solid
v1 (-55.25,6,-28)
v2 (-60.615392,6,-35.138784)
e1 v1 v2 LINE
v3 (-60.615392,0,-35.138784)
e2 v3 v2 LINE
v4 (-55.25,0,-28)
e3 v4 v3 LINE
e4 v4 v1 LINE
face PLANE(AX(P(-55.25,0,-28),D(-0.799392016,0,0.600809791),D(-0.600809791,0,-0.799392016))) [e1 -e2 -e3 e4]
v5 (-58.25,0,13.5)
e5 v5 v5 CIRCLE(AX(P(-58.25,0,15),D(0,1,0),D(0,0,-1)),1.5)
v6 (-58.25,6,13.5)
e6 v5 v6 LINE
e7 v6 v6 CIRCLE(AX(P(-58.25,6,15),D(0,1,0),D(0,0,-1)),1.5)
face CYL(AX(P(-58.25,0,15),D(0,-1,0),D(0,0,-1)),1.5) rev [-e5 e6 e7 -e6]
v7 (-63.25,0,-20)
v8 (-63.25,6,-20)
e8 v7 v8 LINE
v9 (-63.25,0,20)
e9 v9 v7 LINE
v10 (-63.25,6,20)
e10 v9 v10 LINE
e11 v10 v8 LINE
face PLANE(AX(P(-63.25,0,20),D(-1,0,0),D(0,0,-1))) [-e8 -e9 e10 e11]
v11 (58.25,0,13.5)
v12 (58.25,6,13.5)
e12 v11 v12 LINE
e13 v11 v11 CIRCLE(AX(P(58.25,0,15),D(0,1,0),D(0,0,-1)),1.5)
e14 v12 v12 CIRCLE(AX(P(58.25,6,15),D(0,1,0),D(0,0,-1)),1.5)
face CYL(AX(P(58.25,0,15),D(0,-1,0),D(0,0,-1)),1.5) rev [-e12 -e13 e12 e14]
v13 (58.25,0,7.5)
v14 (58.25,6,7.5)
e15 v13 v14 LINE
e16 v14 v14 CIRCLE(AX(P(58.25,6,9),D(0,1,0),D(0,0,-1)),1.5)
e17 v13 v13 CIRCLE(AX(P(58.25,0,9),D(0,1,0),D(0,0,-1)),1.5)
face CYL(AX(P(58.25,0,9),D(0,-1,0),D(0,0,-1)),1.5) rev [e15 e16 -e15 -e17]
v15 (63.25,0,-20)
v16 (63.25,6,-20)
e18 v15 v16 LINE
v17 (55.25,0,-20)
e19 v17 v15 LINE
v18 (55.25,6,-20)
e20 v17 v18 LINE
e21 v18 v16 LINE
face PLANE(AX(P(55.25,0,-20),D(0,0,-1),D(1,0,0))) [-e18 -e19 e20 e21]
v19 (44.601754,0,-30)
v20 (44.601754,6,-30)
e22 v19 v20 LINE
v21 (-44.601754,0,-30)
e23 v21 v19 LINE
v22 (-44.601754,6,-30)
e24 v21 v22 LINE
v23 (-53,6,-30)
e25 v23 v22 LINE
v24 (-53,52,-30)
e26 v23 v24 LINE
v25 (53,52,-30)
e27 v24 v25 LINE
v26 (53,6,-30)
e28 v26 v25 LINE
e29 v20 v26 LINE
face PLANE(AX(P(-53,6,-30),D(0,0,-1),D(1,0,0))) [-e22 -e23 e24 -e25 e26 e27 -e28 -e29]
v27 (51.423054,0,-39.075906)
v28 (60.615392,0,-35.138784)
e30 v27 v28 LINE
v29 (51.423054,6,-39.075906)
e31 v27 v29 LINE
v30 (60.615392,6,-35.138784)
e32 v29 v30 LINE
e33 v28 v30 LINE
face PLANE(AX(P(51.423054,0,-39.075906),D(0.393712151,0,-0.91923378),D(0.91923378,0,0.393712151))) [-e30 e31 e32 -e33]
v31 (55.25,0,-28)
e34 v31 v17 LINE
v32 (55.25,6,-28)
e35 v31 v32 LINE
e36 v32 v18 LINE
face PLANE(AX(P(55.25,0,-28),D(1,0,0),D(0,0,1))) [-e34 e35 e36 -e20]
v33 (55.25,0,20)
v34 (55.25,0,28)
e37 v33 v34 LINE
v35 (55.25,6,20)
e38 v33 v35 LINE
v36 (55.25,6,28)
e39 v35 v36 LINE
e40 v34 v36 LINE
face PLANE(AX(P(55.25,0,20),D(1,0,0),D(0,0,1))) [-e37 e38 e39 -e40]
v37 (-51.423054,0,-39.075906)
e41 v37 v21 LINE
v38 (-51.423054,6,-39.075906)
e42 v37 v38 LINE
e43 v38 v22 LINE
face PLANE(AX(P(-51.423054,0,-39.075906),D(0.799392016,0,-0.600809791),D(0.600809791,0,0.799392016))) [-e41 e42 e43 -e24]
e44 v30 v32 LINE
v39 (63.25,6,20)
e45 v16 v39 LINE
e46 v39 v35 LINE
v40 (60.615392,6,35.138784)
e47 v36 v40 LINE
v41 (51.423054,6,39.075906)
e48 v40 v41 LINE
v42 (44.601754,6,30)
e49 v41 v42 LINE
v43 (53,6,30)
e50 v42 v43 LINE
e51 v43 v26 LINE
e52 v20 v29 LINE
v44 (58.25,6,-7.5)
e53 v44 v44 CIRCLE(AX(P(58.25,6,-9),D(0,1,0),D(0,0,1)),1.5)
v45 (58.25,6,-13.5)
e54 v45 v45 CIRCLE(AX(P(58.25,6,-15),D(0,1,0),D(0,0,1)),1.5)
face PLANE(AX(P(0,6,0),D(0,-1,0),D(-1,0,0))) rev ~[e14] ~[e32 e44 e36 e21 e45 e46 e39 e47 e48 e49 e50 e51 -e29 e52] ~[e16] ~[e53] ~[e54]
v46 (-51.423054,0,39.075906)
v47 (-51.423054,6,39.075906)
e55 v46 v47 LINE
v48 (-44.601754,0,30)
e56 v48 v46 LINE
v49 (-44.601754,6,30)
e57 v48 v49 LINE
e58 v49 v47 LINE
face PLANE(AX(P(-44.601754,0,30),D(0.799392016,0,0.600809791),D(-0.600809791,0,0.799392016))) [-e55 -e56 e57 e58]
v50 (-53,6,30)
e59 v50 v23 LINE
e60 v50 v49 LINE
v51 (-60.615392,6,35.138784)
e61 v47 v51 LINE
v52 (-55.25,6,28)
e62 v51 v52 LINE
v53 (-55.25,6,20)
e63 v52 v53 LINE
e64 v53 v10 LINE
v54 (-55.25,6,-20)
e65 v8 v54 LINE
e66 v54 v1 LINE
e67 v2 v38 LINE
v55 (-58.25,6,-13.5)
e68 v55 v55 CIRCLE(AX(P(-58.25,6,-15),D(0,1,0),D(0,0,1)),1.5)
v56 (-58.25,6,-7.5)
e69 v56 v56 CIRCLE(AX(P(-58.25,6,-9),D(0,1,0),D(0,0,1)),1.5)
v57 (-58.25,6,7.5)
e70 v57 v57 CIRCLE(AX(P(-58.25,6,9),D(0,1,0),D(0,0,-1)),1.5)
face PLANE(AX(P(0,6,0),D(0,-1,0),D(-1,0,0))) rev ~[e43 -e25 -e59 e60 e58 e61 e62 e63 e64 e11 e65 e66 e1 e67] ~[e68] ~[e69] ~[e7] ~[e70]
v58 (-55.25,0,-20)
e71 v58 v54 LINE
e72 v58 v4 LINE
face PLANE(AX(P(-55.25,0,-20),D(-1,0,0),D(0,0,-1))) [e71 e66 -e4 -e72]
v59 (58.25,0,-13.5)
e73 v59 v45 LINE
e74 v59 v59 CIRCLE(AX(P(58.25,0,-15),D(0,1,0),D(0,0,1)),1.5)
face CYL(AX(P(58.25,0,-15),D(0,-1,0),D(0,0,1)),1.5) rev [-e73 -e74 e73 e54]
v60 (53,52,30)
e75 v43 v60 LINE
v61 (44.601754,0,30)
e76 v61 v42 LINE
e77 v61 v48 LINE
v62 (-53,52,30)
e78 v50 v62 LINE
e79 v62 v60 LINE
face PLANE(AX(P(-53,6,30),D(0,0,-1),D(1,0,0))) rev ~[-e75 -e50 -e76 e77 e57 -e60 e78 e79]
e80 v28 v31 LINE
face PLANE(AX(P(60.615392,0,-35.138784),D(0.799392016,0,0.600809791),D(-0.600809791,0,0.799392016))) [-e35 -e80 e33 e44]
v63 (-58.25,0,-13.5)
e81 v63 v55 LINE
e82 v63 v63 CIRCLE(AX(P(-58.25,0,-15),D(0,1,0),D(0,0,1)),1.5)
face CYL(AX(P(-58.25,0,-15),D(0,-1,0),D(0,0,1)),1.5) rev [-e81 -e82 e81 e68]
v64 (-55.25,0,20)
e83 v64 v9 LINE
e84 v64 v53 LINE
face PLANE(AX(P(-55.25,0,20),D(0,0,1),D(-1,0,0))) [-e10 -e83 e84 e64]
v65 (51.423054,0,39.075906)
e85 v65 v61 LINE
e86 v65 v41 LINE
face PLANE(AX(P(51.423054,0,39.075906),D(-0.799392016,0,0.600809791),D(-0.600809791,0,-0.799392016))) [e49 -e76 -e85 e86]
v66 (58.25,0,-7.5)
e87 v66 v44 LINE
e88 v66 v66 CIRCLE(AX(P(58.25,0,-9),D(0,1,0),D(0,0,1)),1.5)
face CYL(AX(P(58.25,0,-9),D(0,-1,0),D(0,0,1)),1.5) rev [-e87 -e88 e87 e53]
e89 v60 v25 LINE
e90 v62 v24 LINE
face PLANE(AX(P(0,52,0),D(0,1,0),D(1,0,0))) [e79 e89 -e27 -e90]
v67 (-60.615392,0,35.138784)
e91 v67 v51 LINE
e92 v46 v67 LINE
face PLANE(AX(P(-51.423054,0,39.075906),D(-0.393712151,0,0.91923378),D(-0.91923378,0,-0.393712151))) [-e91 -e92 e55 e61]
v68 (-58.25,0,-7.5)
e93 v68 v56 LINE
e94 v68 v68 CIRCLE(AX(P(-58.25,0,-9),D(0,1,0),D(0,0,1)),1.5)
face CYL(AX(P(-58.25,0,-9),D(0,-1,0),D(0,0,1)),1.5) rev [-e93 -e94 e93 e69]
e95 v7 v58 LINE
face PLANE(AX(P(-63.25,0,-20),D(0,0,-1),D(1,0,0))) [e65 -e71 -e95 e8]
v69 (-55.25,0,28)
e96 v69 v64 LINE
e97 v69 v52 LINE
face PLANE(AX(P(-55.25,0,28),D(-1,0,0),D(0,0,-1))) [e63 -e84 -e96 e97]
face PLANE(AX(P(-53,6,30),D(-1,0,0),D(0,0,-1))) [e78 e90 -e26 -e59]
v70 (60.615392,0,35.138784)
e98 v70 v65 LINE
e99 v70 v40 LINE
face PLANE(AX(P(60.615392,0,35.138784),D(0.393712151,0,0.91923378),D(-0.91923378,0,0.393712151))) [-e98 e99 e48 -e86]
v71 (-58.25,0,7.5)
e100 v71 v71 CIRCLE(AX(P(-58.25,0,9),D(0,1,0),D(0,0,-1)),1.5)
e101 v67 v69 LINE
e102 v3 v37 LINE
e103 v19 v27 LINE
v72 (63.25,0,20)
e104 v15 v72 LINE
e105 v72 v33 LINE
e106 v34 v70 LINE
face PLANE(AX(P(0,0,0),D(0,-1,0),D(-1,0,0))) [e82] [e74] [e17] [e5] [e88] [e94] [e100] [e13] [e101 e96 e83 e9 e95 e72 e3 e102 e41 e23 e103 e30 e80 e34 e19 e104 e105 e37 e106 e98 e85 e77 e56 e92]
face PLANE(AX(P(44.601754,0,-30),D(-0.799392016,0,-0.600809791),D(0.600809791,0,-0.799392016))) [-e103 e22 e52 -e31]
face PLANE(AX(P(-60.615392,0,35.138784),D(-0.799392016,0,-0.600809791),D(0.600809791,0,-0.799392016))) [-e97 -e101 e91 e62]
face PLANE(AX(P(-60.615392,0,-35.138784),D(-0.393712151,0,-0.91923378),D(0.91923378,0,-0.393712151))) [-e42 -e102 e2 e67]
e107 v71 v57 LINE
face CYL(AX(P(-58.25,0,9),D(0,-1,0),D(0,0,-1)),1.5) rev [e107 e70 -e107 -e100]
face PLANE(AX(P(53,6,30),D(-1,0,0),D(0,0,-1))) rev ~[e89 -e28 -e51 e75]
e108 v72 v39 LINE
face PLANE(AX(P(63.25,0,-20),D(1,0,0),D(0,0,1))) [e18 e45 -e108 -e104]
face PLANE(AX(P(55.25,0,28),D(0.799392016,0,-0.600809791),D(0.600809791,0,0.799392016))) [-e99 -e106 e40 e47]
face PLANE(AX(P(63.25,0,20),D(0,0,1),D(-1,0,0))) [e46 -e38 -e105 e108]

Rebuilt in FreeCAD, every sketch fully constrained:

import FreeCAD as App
import Part
import Sketcher
from FreeCAD import Vector

doc = App.newDocument("Part")
body = doc.addObject("PartDesign::Body", "Body")

# Sketch on XZ plane
sketch1 = body.newObject("Sketcher::SketchObject", "Sketch")
sketch1.AttachmentSupport = (doc.getObject("XZ_Plane"), [""])
sketch1.MapMode = "FlatFace"
sketch1.addGeometry(Part.LineSegment(Vector(-44.6, 30, 0), Vector(44.6, 30, 0)), False)
sketch1.addGeometry(Part.LineSegment(Vector(44.6, 30, 0), Vector(51.4, 39.1, 0)), False)
sketch1.addGeometry(Part.LineSegment(Vector(51.4, 39.1, 0), Vector(60.6, 35.1, 0)), False)
sketch1.addGeometry(Part.LineSegment(Vector(60.6, 35.1, 0), Vector(55.2, 28, 0)), False)
sketch1.addGeometry(Part.LineSegment(Vector(55.2, 28, 0), Vector(55.2, 20, 0)), False)
sketch1.addGeometry(Part.LineSegment(Vector(55.2, 20, 0), Vector(63.2, 20, 0)), False)
sketch1.addGeometry(Part.LineSegment(Vector(63.2, 20, 0), Vector(63.2, -20, 0)), False)
sketch1.addGeometry(Part.LineSegment(Vector(63.2, -20, 0), Vector(55.2, -20, 0)), False)
sketch1.addGeometry(Part.LineSegment(Vector(55.2, -20, 0), Vector(55.2, -28, 0)), False)
sketch1.addGeometry(Part.LineSegment(Vector(55.2, -28, 0), Vector(60.6, -35.1, 0)), False)
sketch1.addGeometry(Part.LineSegment(Vector(60.6, -35.1, 0), Vector(51.4, -39.1, 0)), False)
sketch1.addGeometry(Part.LineSegment(Vector(51.4, -39.1, 0), Vector(44.6, -30, 0)), False)
sketch1.addGeometry(Part.LineSegment(Vector(44.6, -30, 0), Vector(-44.6, -30, 0)), False)
sketch1.addGeometry(Part.LineSegment(Vector(-44.6, -30, 0), Vector(-51.4, -39.1, 0)), False)
sketch1.addGeometry(Part.LineSegment(Vector(-51.4, -39.1, 0), Vector(-60.6, -35.1, 0)), False)
sketch1.addGeometry(Part.LineSegment(Vector(-60.6, -35.1, 0), Vector(-55.2, -28, 0)), False)
sketch1.addGeometry(Part.LineSegment(Vector(-55.2, -28, 0), Vector(-55.2, -20, 0)), False)
sketch1.addGeometry(Part.LineSegment(Vector(-55.2, -20, 0), Vector(-63.2, -20, 0)), False)
sketch1.addGeometry(Part.LineSegment(Vector(-63.2, -20, 0), Vector(-63.2, 20, 0)), False)
sketch1.addGeometry(Part.LineSegment(Vector(-63.2, 20, 0), Vector(-55.2, 20, 0)), False)
sketch1.addGeometry(Part.LineSegment(Vector(-55.2, 20, 0), Vector(-55.2, 28, 0)), False)
sketch1.addGeometry(Part.LineSegment(Vector(-55.2, 28, 0), Vector(-60.6, 35.1, 0)), False)
sketch1.addGeometry(Part.LineSegment(Vector(-60.6, 35.1, 0), Vector(-51.4, 39.1, 0)), False)
sketch1.addGeometry(Part.LineSegment(Vector(-51.4, 39.1, 0), Vector(-44.6, 30, 0)), False)
sketch1.addGeometry(Part.Circle(Vector(58.2, 15, 0), Vector(0, 0, 1), 1.5), False)
sketch1.addGeometry(Part.Circle(Vector(58.2, 9, 0), Vector(0, 0, 1), 1.5), False)
sketch1.addGeometry(Part.Circle(Vector(-58.2, 15, 0), Vector(0, 0, 1), 1.5), False)
sketch1.addGeometry(Part.Circle(Vector(-58.2, 9, 0), Vector(0, 0, 1), 1.5), False)
sketch1.addGeometry(Part.Circle(Vector(58.2, -9, 0), Vector(0, 0, 1), 1.5), False)
sketch1.addGeometry(Part.Circle(Vector(58.2, -15, 0), Vector(0, 0, 1), 1.5), False)
sketch1.addGeometry(Part.Circle(Vector(-58.2, -9, 0), Vector(0, 0, 1), 1.5), False)
sketch1.addGeometry(Part.Circle(Vector(-58.2, -15, 0), Vector(0, 0, 1), 1.5), False)
sketch1.addConstraint(Sketcher.Constraint("Coincident", 0, 2, 1, 1))
sketch1.addConstraint(Sketcher.Constraint("Coincident", 1, 2, 2, 1))
sketch1.addConstraint(Sketcher.Constraint("Coincident", 2, 2, 3, 1))
sketch1.addConstraint(Sketcher.Constraint("Coincident", 3, 2, 4, 1))
sketch1.addConstraint(Sketcher.Constraint("Coincident", 4, 2, 5, 1))
sketch1.addConstraint(Sketcher.Constraint("Coincident", 5, 2, 6, 1))
sketch1.addConstraint(Sketcher.Constraint("Coincident", 6, 2, 7, 1))
sketch1.addConstraint(Sketcher.Constraint("Coincident", 7, 2, 8, 1))
sketch1.addConstraint(Sketcher.Constraint("Coincident", 8, 2, 9, 1))
sketch1.addConstraint(Sketcher.Constraint("Coincident", 9, 2, 10, 1))
sketch1.addConstraint(Sketcher.Constraint("Coincident", 10, 2, 11, 1))
sketch1.addConstraint(Sketcher.Constraint("Coincident", 11, 2, 12, 1))
sketch1.addConstraint(Sketcher.Constraint("Coincident", 12, 2, 13, 1))
sketch1.addConstraint(Sketcher.Constraint("Coincident", 13, 2, 14, 1))
sketch1.addConstraint(Sketcher.Constraint("Coincident", 14, 2, 15, 1))
sketch1.addConstraint(Sketcher.Constraint("Coincident", 15, 2, 16, 1))
sketch1.addConstraint(Sketcher.Constraint("Coincident", 16, 2, 17, 1))
sketch1.addConstraint(Sketcher.Constraint("Coincident", 17, 2, 18, 1))
sketch1.addConstraint(Sketcher.Constraint("Coincident", 18, 2, 19, 1))
sketch1.addConstraint(Sketcher.Constraint("Coincident", 19, 2, 20, 1))
sketch1.addConstraint(Sketcher.Constraint("Coincident", 20, 2, 21, 1))
sketch1.addConstraint(Sketcher.Constraint("Coincident", 21, 2, 22, 1))
sketch1.addConstraint(Sketcher.Constraint("Coincident", 22, 2, 23, 1))
sketch1.addConstraint(Sketcher.Constraint("Coincident", 23, 2, 0, 1))
sketch1.addConstraint(Sketcher.Constraint("Horizontal", 0))
sketch1.addConstraint(Sketcher.Constraint("Vertical", 4))
sketch1.addConstraint(Sketcher.Constraint("Horizontal", 5))
sketch1.addConstraint(Sketcher.Constraint("Vertical", 6))
sketch1.addConstraint(Sketcher.Constraint("Horizontal", 7))
sketch1.addConstraint(Sketcher.Constraint("Vertical", 8))
sketch1.addConstraint(Sketcher.Constraint("Horizontal", 12))
sketch1.addConstraint(Sketcher.Constraint("Vertical", 16))
sketch1.addConstraint(Sketcher.Constraint("Horizontal", 17))
sketch1.addConstraint(Sketcher.Constraint("Vertical", 18))
sketch1.addConstraint(Sketcher.Constraint("Horizontal", 19))
sketch1.addConstraint(Sketcher.Constraint("Vertical", 20))
sketch1.addConstraint(Sketcher.Constraint("Equal", 24, 25))
sketch1.addConstraint(Sketcher.Constraint("Equal", 25, 26))
sketch1.addConstraint(Sketcher.Constraint("Equal", 26, 27))
sketch1.addConstraint(Sketcher.Constraint("Equal", 27, 28))
sketch1.addConstraint(Sketcher.Constraint("Equal", 28, 29))
sketch1.addConstraint(Sketcher.Constraint("Equal", 29, 30))
sketch1.addConstraint(Sketcher.Constraint("Equal", 30, 31))
sketch1.addConstraint(Sketcher.Constraint("Symmetric", 27, 3, 28, 3, -1, 1))
sketch1.addConstraint(Sketcher.Constraint("Symmetric", 26, 3, 29, 3, -1, 1))
sketch1.addConstraint(Sketcher.Constraint("Symmetric", 25, 3, 30, 3, -1, 1))
sketch1.addConstraint(Sketcher.Constraint("Symmetric", 24, 3, 31, 3, -1, 1))
sketch1.addConstraint(Sketcher.Constraint("Symmetric", 0, 2, 12, 2, -1, 1))
sketch1.addConstraint(Sketcher.Constraint("Symmetric", 1, 2, 13, 2, -1, 1))
sketch1.addConstraint(Sketcher.Constraint("Symmetric", 2, 2, 14, 2, -1, 1))
sketch1.addConstraint(Sketcher.Constraint("Symmetric", 3, 2, 15, 2, -1, 1))
sketch1.addConstraint(Sketcher.Constraint("Symmetric", 5, 2, 17, 2, -1, 1))
sketch1.addConstraint(Sketcher.Constraint("Symmetric", 7, 2, 19, 2, -1, 1))
sketch1.addConstraint(Sketcher.Constraint("Symmetric", 9, 2, 21, 2, -1, 1))
sketch1.addConstraint(Sketcher.Constraint("Symmetric", 10, 2, 22, 2, -1, 1))
sketch1.addConstraint(Sketcher.Constraint("Symmetric", 24, 3, 26, 3, -2))
sketch1.addConstraint(Sketcher.Constraint("Symmetric", 25, 3, 27, 3, -2))
sketch1.addConstraint(Sketcher.Constraint("Symmetric", 10, 2, 13, 2, -2))
sketch1.addConstraint(Sketcher.Constraint("Symmetric", 9, 2, 14, 2, -2))
sketch1.addConstraint(Sketcher.Constraint("Symmetric", 8, 2, 15, 2, -2))
sketch1.addConstraint(Sketcher.Constraint("Parallel", 1, 3))
sketch1.addConstraint(Sketcher.Constraint("Parallel", 9, 11))
sketch1.addConstraint(Sketcher.Constraint("Parallel", 11, 21))
sketch1.addConstraint(Sketcher.Constraint("Parallel", 21, 23))
sketch1.addConstraint(Sketcher.Constraint("Horizontal", 7, 2, 16, 2))
sketch1.addConstraint(Sketcher.Constraint("Vertical", 24, 3, 25, 3))
sketch1.addConstraint(Sketcher.Constraint("Equal", 19, 4))
sketch1.addConstraint(Sketcher.Constraint("Diameter", 24, 3.0))
sketch1.addConstraint(Sketcher.Constraint("DistanceX", 5, 1, 5, 2, 8.0))
sketch1.addConstraint(Sketcher.Constraint("DistanceY", 6, 2, 6, 1, 40.0))
sketch1.addConstraint(Sketcher.Constraint("Distance", 2, 10.0))
sketch1.addConstraint(Sketcher.Constraint("DistanceY", -1, 1, 24, 3, 15.0))
sketch1.addConstraint(Sketcher.Constraint("DistanceY", -1, 1, 25, 3, 9.0))
sketch1.addConstraint(Sketcher.Constraint("DistanceY", -1, 1, 0, 2, 30.0))
sketch1.addConstraint(Sketcher.Constraint("DistanceX", 3, 2, 24, 3, 3.0))
sketch1.addConstraint(Sketcher.Constraint("DistanceX", 26, 3, 24, 3, 116.5))
sketch1.addConstraint(Sketcher.Constraint("DistanceX", 0, 2, 1, 2, 6.8213))
sketch1.addConstraint(Sketcher.Constraint("Distance", 1, 11.35351))
sketch1.addConstraint(Sketcher.Constraint("DistanceX", 0, 1, 0, 2, 89.203508))
pad1 = body.newObject("PartDesign::Pad", "Pad")
pad1.Profile = sketch1
pad1.Length = 6
pad1.Reversed = True

# Sketch on XZ plane
sketch2 = body.newObject("Sketcher::SketchObject", "Sketch001")
sketch2.AttachmentSupport = (doc.getObject("XZ_Plane"), [""])
sketch2.MapMode = "FlatFace"
sketch2.AttachmentOffset = App.Placement(Vector(0, 0, -6), App.Rotation())
sketch2.addGeometry(Part.LineSegment(Vector(-53, -30, 0), Vector(-53, 30, 0)), False)
sketch2.addGeometry(Part.LineSegment(Vector(-53, 30, 0), Vector(53, 30, 0)), False)
sketch2.addGeometry(Part.LineSegment(Vector(53, 30, 0), Vector(53, -30, 0)), False)
sketch2.addGeometry(Part.LineSegment(Vector(53, -30, 0), Vector(-53, -30, 0)), False)
sketch2.addConstraint(Sketcher.Constraint("Coincident", 0, 2, 1, 1))
sketch2.addConstraint(Sketcher.Constraint("Coincident", 1, 2, 2, 1))
sketch2.addConstraint(Sketcher.Constraint("Coincident", 2, 2, 3, 1))
sketch2.addConstraint(Sketcher.Constraint("Coincident", 3, 2, 0, 1))
sketch2.addConstraint(Sketcher.Constraint("Vertical", 0))
sketch2.addConstraint(Sketcher.Constraint("Horizontal", 1))
sketch2.addConstraint(Sketcher.Constraint("Vertical", 2))
sketch2.addConstraint(Sketcher.Constraint("Horizontal", 3))
sketch2.addConstraint(Sketcher.Constraint("Symmetric", 0, 2, 2, 2, -1, 1))
sketch2.addConstraint(Sketcher.Constraint("DistanceX", 1, 1, 1, 2, 106.0))
sketch2.addConstraint(Sketcher.Constraint("DistanceY", 0, 1, 0, 2, 60.0))
pad2 = body.newObject("PartDesign::Pad", "Pad001")
pad2.Profile = sketch2
pad2.Length = 46
pad2.Reversed = True

doc.recompute()
